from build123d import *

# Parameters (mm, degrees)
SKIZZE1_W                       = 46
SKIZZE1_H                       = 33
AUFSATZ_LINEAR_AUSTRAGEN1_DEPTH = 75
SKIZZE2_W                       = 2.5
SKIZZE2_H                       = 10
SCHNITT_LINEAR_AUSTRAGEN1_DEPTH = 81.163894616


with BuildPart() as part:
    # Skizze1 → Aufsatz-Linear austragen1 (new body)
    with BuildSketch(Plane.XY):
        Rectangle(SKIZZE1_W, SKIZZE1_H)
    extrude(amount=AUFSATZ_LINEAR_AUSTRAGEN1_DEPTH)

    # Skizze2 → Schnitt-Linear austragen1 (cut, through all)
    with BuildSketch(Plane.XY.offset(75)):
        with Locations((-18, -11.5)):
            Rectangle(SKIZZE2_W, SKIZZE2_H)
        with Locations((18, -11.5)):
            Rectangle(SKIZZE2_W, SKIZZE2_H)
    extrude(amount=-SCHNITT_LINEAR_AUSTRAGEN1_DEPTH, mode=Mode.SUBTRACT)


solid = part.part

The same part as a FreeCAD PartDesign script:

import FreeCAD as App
import Part
import Sketcher

V = App.Vector
Q = App.Units.Quantity

doc = App.newDocument("Part")
body = doc.addObject("PartDesign::Body", "Body")

# Sketch on XY plane
sketch1 = doc.addObject("Sketcher::SketchObject", "Sketch")
body.addObject(sketch1)
sketch1.AttachmentSupport = (doc.XY_Plane, [""])
sketch1.MapMode = "FlatFace"
sketch1.addGeometry(Part.LineSegment(V(-23, 16.5, 0), V(-23, -16.5, 0)), False)
sketch1.addGeometry(Part.LineSegment(V(-23, -16.5, 0), V(23, -16.5, 0)), False)
sketch1.addGeometry(Part.LineSegment(V(23, -16.5, 0), V(23, 16.5, 0)), False)
sketch1.addGeometry(Part.LineSegment(V(23, 16.5, 0), V(-23, 16.5, 0)), False)
sketch1.addConstraint(Sketcher.Constraint("Coincident", 0, 2, 1, 1))
sketch1.addConstraint(Sketcher.Constraint("Coincident", 1, 2, 2, 1))
sketch1.addConstraint(Sketcher.Constraint("Coincident", 2, 2, 3, 1))
sketch1.addConstraint(Sketcher.Constraint("Coincident", 3, 2, 0, 1))
sketch1.addConstraint(Sketcher.Constraint("Vertical", 0))
sketch1.addConstraint(Sketcher.Constraint("Horizontal", 1))
sketch1.addConstraint(Sketcher.Constraint("Vertical", 2))
sketch1.addConstraint(Sketcher.Constraint("Horizontal", 3))
sketch1.addConstraint(Sketcher.Constraint("Symmetric", 0, 2, 2, 2, -1, 1))
sketch1.addConstraint(Sketcher.Constraint("DistanceX", 1, 1, 1, 2, Q("46 mm")))
sketch1.addConstraint(Sketcher.Constraint("DistanceY", 0, 2, 0, 1, Q("33 mm")))
pad1 = doc.addObject("PartDesign::Pad", "Pad")
body.addObject(pad1)
pad1.Profile = sketch1
pad1.Length = 75

# Sketch on XY plane
sketch2 = doc.addObject("Sketcher::SketchObject", "Sketch001")
body.addObject(sketch2)
sketch2.AttachmentSupport = (doc.XY_Plane, [""])
sketch2.MapMode = "FlatFace"
sketch2.AttachmentOffset = App.Placement(V(0, 0, 75), App.Rotation())
sketch2.addGeometry(Part.LineSegment(V(-19.25, -6.5, 0), V(-19.25, -16.5, 0)), False)
sketch2.addGeometry(Part.LineSegment(V(-19.25, -16.5, 0), V(-16.75, -16.5, 0)), False)
sketch2.addGeometry(Part.LineSegment(V(-16.75, -16.5, 0), V(-16.75, -6.5, 0)), False)
sketch2.addGeometry(Part.LineSegment(V(-16.75, -6.5, 0), V(-19.25, -6.5, 0)), False)
sketch2.addGeometry(Part.LineSegment(V(16.75, -6.5, 0), V(16.75, -16.5, 0)), False)
sketch2.addGeometry(Part.LineSegment(V(16.75, -16.5, 0), V(19.25, -16.5, 0)), False)
sketch2.addGeometry(Part.LineSegment(V(19.25, -16.5, 0), V(19.25, -6.5, 0)), False)
sketch2.addGeometry(Part.LineSegment(V(19.25, -6.5, 0), V(16.75, -6.5, 0)), False)
sketch2.addConstraint(Sketcher.Constraint("Coincident", 0, 2, 1, 1))
sketch2.addConstraint(Sketcher.Constraint("Coincident", 1, 2, 2, 1))
sketch2.addConstraint(Sketcher.Constraint("Coincident", 2, 2, 3, 1))
sketch2.addConstraint(Sketcher.Constraint("Coincident", 3, 2, 0, 1))
sketch2.addConstraint(Sketcher.Constraint("Coincident", 4, 2, 5, 1))
sketch2.addConstraint(Sketcher.Constraint("Coincident", 5, 2, 6, 1))
sketch2.addConstraint(Sketcher.Constraint("Coincident", 6, 2, 7, 1))
sketch2.addConstraint(Sketcher.Constraint("Coincident", 7, 2, 4, 1))
sketch2.addConstraint(Sketcher.Constraint("Vertical", 0))
sketch2.addConstraint(Sketcher.Constraint("Horizontal", 1))
sketch2.addConstraint(Sketcher.Constraint("Vertical", 2))
sketch2.addConstraint(Sketcher.Constraint("Horizontal", 3))
sketch2.addConstraint(Sketcher.Constraint("Vertical", 4))
sketch2.addConstraint(Sketcher.Constraint("Horizontal", 5))
sketch2.addConstraint(Sketcher.Constraint("Vertical", 6))
sketch2.addConstraint(Sketcher.Constraint("Horizontal", 7))
sketch2.addConstraint(Sketcher.Constraint("Symmetric", 1, 2, 4, 2, -2))
sketch2.addConstraint(Sketcher.Constraint("Symmetric", 3, 2, 6, 2, -2))
sketch2.addConstraint(Sketcher.Constraint("DistanceY", 0, 2, 0, 1, Q("10 mm")))
sketch2.addConstraint(Sketcher.Constraint("DistanceX", 1, 1, 1, 2, Q("2.5 mm")))
sketch2.addConstraint(Sketcher.Constraint("DistanceX", 0, 2, 4, 2, Q("36 mm")))
sketch2.addConstraint(Sketcher.Constraint("DistanceY", 0, 2, -1, 1, Q("16.5 mm")))
pocket1 = doc.addObject("PartDesign::Pocket", "Pocket")
body.addObject(pocket1)
pocket1.Profile = sketch2
pocket1.Type = "ThroughAll"

doc.recompute()
